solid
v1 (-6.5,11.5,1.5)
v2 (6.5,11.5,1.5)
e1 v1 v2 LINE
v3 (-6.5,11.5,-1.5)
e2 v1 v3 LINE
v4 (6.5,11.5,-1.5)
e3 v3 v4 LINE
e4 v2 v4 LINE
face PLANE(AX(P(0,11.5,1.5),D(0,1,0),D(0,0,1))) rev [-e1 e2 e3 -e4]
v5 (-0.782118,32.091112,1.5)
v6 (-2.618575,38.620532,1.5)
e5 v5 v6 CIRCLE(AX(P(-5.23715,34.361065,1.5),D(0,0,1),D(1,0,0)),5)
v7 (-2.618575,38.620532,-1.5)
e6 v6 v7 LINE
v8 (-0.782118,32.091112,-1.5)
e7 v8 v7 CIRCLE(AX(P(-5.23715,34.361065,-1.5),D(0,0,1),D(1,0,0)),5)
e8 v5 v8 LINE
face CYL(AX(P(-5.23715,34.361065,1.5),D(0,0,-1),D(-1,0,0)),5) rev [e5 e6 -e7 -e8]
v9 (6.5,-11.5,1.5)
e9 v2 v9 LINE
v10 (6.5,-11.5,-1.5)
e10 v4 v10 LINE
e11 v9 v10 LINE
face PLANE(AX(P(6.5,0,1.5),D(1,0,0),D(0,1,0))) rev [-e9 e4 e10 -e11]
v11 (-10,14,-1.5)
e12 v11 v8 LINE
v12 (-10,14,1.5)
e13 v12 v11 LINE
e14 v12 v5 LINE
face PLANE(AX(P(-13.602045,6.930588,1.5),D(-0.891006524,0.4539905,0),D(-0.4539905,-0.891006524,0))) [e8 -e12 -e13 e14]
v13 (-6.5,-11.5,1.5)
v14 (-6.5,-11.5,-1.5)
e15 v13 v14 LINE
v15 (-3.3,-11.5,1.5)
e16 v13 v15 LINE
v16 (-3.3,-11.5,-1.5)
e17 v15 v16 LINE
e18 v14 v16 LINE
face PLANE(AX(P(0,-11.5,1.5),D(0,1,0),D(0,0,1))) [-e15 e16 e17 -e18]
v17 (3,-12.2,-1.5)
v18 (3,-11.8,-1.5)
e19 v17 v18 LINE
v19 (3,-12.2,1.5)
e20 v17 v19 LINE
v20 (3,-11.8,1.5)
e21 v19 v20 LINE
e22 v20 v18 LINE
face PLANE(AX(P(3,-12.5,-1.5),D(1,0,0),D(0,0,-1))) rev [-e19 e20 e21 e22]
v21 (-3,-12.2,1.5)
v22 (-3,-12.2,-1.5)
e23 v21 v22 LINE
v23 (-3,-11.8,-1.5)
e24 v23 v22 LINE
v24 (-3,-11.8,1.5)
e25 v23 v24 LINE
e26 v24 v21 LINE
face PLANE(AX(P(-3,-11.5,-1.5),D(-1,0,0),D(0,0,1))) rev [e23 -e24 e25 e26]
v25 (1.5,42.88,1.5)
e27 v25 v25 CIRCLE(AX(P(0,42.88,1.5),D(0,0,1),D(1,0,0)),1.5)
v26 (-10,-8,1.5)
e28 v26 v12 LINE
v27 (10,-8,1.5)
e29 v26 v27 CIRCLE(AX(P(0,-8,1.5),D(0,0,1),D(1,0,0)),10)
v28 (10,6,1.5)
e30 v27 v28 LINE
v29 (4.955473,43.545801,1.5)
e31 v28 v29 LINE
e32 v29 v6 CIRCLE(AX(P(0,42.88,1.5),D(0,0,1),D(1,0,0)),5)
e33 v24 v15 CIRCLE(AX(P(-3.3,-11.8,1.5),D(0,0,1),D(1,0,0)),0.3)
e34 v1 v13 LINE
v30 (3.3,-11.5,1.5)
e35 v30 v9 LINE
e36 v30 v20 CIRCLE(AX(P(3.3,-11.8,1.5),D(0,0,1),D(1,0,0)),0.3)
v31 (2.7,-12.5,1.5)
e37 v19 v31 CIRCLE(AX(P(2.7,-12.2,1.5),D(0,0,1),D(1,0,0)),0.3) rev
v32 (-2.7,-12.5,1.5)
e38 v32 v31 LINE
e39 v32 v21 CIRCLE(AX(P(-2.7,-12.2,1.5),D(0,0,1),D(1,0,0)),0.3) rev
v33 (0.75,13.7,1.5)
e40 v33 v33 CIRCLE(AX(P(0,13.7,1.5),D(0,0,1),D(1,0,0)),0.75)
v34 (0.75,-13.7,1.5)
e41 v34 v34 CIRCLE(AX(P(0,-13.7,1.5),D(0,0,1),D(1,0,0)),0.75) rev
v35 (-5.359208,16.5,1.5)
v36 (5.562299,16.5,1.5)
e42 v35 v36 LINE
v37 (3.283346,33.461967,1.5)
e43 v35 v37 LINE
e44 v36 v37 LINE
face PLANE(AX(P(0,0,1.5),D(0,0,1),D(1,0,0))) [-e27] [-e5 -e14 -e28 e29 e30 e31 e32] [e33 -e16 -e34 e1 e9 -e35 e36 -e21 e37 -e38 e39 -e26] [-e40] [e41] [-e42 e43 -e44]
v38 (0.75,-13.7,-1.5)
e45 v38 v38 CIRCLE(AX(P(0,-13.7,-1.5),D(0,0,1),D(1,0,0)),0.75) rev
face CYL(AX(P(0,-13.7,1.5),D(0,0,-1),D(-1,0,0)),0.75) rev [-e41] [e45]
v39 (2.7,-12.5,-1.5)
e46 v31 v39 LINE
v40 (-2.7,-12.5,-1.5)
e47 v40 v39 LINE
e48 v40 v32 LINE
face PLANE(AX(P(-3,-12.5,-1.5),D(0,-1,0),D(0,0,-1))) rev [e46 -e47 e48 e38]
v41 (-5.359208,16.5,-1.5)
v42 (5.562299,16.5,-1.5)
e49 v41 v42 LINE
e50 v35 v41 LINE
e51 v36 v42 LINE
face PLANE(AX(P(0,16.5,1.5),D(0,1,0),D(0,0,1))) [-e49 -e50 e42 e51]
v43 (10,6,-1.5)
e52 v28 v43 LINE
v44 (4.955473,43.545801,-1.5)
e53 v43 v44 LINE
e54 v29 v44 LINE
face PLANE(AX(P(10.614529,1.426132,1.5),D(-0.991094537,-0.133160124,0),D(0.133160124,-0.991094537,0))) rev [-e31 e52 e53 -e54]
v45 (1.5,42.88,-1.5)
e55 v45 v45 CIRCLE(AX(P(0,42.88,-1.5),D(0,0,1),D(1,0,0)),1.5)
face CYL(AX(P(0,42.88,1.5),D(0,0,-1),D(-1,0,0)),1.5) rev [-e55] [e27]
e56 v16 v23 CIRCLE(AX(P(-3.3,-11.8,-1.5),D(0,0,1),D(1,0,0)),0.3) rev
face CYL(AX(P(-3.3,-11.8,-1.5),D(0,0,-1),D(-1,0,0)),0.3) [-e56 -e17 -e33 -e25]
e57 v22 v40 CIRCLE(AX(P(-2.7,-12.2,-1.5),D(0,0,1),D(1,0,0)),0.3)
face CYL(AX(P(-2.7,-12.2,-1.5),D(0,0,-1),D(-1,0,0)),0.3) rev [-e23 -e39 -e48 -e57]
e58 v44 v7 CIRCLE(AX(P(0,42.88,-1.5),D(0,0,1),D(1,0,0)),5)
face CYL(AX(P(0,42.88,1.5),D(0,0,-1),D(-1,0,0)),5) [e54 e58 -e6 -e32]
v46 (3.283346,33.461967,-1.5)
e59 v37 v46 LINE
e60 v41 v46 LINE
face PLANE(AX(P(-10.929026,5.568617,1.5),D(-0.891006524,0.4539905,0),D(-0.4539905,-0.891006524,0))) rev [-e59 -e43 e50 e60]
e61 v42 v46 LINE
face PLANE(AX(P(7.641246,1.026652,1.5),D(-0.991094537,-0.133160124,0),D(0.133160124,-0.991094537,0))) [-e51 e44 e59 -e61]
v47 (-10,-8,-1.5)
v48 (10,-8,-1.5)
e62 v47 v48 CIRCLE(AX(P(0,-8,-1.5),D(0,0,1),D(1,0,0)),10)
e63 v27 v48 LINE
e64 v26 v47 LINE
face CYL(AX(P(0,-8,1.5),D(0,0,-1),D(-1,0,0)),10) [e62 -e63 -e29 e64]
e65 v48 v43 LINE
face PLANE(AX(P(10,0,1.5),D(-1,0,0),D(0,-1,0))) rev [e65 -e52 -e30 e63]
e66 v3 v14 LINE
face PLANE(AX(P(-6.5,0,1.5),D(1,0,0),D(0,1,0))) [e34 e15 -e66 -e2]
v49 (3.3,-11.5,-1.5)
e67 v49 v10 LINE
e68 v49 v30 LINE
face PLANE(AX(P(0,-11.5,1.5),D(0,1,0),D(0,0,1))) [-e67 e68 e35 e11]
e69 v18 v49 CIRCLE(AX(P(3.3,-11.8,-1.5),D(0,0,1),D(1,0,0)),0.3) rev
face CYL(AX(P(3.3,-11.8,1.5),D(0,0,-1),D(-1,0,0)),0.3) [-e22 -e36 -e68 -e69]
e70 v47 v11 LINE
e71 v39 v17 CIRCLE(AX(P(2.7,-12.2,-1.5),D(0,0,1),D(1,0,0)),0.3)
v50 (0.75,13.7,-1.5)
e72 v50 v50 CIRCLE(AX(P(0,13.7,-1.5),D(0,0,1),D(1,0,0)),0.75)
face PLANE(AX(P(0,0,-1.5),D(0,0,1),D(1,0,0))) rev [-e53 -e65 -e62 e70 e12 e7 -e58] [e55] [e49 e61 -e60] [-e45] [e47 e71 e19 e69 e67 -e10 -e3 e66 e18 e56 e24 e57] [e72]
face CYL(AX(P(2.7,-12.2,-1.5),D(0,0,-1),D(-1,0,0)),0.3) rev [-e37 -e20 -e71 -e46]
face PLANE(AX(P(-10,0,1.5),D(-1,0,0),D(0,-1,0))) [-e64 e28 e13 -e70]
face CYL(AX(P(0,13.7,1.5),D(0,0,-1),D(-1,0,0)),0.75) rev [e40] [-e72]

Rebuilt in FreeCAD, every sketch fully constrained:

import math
import FreeCAD as App
import Part
import Sketcher

V = App.Vector
Q = App.Units.Quantity


def edges_at(feature, points):
    """Names of the edges that pass closest to the given points."""
    edges = feature.Shape.Edges
    near = lambda p: min(range(len(edges)), key=lambda i: edges[i].distToShape(Part.Vertex(*p))[0])
    return sorted({f"Edge{near(p) + 1}" for p in points})


def add_polygon(sketch, points):
    """Adds a closed chain of lines whose ends are joined by coincident constraints."""
    first, n = sketch.GeometryCount, len(points)
    for a, b in zip(points, points[1:] + points[:1]):
        sketch.addGeometry(Part.LineSegment(App.Vector(*a, 0), App.Vector(*b, 0)), False)
    for i in range(n):
        sketch.addConstraint(Sketcher.Constraint("Coincident", first + i, 2, first + (i + 1) % n, 1))

doc = App.newDocument("Part")
params = doc.addObject("Spreadsheet::Sheet", "Params")
for row, (alias, value) in enumerate([
    ("sketch1_diameter", "3 mm"),
    ("sketch1_radius", "10 mm"),
    ("sketch1_radius2", "5 mm"),
    ("sketch1_diameter2", "1.5 mm"),
    ("sketch1_width", "13 mm"),
    ("pad1_length", "3 mm"),
    ("sketch2_width", "6 mm"),
    ("sketch2_height", "1 mm"),
    ("pocket1_length", "3 mm"),
    ("fillet_radius", "0.3 mm"),
], start=1):
    params.set(f"A{row}", alias)
    params.set(f"B{row}", "=" + value)
    params.setAlias(f"B{row}", alias)

body = doc.addObject("PartDesign::Body", "Body")

# Sketch on XY plane
sketch1 = doc.addObject("Sketcher::SketchObject", "Sketch")
body.addObject(sketch1)
sketch1.AttachmentSupport = (doc.XY_Plane, [""])
sketch1.MapMode = "FlatFace"
sketch1.addGeometry(Part.ArcOfCircle(Part.Circle(V(0, -8, 0), V(0, 0, 1), 10), math.radians(180), math.radians(360)), False)  # 0
sketch1.addGeometry(Part.LineSegment(V(10, -8, 0), V(10, 6, 0)), False)  # 1
sketch1.addGeometry(Part.LineSegment(V(10, 6, 0), V(5, 43.5, 0)), False)  # 2
sketch1.addGeometry(Part.ArcOfCircle(Part.Circle(V(0, 42.9, 0), V(0, 0, 1), 5), math.radians(8), math.radians(238)), False)  # 3
sketch1.addGeometry(Part.ArcOfCircle(Part.Circle(V(-5.2, 34.4, 0), V(0, 0, 1), 5), math.radians(-27), math.radians(58)), False)  # 4
sketch1.addGeometry(Part.LineSegment(V(-0.8, 32.1, 0), V(-10, 14, 0)), False)  # 5
sketch1.addGeometry(Part.LineSegment(V(-10, 14, 0), V(-10, -8, 0)), False)  # 6
sketch1.addGeometry(Part.Circle(V(0, -13.7, 0), V(0, 0, 1), 0.8), False)  # 7
add_polygon(sketch1, [(6.5, -11.5), (-6.5, -11.5), (-6.5, 11.5), (6.5, 11.5)])  # lines 8-11
sketch1.addGeometry(Part.Circle(V(0, 13.7, 0), V(0, 0, 1), 0.8), False)  # 12
add_polygon(sketch1, [(3.3, 33.5), (5.6, 16.5), (-5.4, 16.5)])  # lines 13-15
sketch1.addGeometry(Part.Circle(V(0, 42.9, 0), V(0, 0, 1), 1.5), False)  # 16
sketch1.addConstraint([
    Sketcher.Constraint("Tangent", 0, 2, 1, 1),
    Sketcher.Constraint("Coincident", 1, 2, 2, 1),
    Sketcher.Constraint("Tangent", 2, 2, 3, 1),
    Sketcher.Constraint("Tangent", 3, 2, 4, 2),
    Sketcher.Constraint("Tangent", 4, 1, 5, 1),
    Sketcher.Constraint("Coincident", 5, 2, 6, 1),
    Sketcher.Constraint("Tangent", 6, 2, 0, 1),
    Sketcher.Constraint("Vertical", 1),
    Sketcher.Constraint("Vertical", 6),
    Sketcher.Constraint("Horizontal", 8),
    Sketcher.Constraint("Vertical", 9),
    Sketcher.Constraint("Horizontal", 10),
    Sketcher.Constraint("Vertical", 11),
    Sketcher.Constraint("Horizontal", 14),
    Sketcher.Constraint("Coincident", 16, 3, 3, 3),
    Sketcher.Constraint("Equal", 3, 4),
    Sketcher.Constraint("Equal", 7, 12),
    Sketcher.Constraint("Symmetric", 7, 3, 12, 3, -1, 1),
    Sketcher.Constraint("Symmetric", 8, 2, 10, 2, -1, 1),
    Sketcher.Constraint("PointOnObject", 0, 3, -2),
    Sketcher.Constraint("PointOnObject", 3, 3, -2),
    Sketcher.Constraint("PointOnObject", 7, 3, -2),
    Sketcher.Constraint("Parallel", 2, 13),
    Sketcher.Constraint("Parallel", 5, 15),
    Sketcher.Constraint("Diameter", 16, Q("3 mm")),
    Sketcher.Constraint("Radius", 0, Q("10 mm")),
    Sketcher.Constraint("Radius", 3, Q("5 mm")),
    Sketcher.Constraint("Diameter", 7, Q("1.5 mm")),
    Sketcher.Constraint("DistanceX", 8, 2, 8, 1, Q("13 mm")),
    Sketcher.Constraint("DistanceY", 1, 1, 1, 2, Q("14 mm")),
    Sketcher.Constraint("DistanceY", 6, 2, 6, 1, Q("22 mm")),
    Sketcher.Constraint("DistanceY", 9, 1, 9, 2, Q("23 mm")),
    Sketcher.Constraint("Angle", 5, Q("-117 deg")),
    Sketcher.Constraint("DistanceY", 0, 3, -1, 1, Q("8 mm")),
    Sketcher.Constraint("DistanceY", 10, 2, 13, 2, Q("5 mm")),
    Sketcher.Constraint("DistanceY", 7, 3, -1, 1, Q("13.7 mm")),
    Sketcher.Constraint("DistanceY", -1, 1, 3, 3, Q("42.88 mm")),
    Sketcher.Constraint("DistanceX", -1, 1, 13, 2, Q("5.562299 mm")),
    Sketcher.Constraint("Distance", 13, Q("17.114378 mm")),
])
sketch1.setExpression("Constraints[31]", "Params.sketch1_diameter")
sketch1.setExpression("Constraints[32]", "Params.sketch1_radius")
sketch1.setExpression("Constraints[33]", "Params.sketch1_radius2")
sketch1.setExpression("Constraints[34]", "Params.sketch1_diameter2")
sketch1.setExpression("Constraints[35]", "Params.sketch1_width")
pad1 = doc.addObject("PartDesign::Pad", "Pad")
body.addObject(pad1)
pad1.Profile = sketch1
pad1.setExpression("Length", "Params.pad1_length")
pad1.Midplane = True

# Sketch on XY plane
sketch2 = doc.addObject("Sketcher::SketchObject", "Sketch001")
body.addObject(sketch2)
sketch2.AttachmentSupport = (doc.XY_Plane, [""])
sketch2.MapMode = "FlatFace"
sketch2.AttachmentOffset = App.Placement(V(0, 0, 1.5), App.Rotation())
add_polygon(sketch2, [(-3, -11.5), (-3, -12.5), (3, -12.5), (3, -11.5)])  # lines 0-3
sketch2.addConstraint([
    Sketcher.Constraint("Vertical", 0),
    Sketcher.Constraint("Horizontal", 1),
    Sketcher.Constraint("Vertical", 2),
    Sketcher.Constraint("Horizontal", 3),
    Sketcher.Constraint("DistanceX", 1, 1, 1, 2, Q("6 mm")),
    Sketcher.Constraint("DistanceY", 0, 2, 0, 1, Q("1 mm")),
    Sketcher.Constraint("DistanceX", 0, 2, -1, 1, Q("3 mm")),
    Sketcher.Constraint("DistanceY", 0, 2, -1, 1, Q("12.5 mm")),
])
sketch2.setExpression("Constraints[8]", "Params.sketch2_width")
sketch2.setExpression("Constraints[9]", "Params.sketch2_height")
pocket1 = doc.addObject("PartDesign::Pocket", "Pocket")
body.addObject(pocket1)
pocket1.Profile = sketch2
pocket1.setExpression("Length", "Params.pocket1_length")
doc.recompute()

fillet = doc.addObject("PartDesign::Fillet", "Fillet")
body.addObject(fillet)
fillet.Base = (pocket1, edges_at(pocket1, [
    (-3, -11.5, 0),
    (3, -11.5, 0),
    (3, -12.5, 0),
    (-3, -12.5, 0),
]))
fillet.setExpression("Radius", "Params.fillet_radius")

doc.recompute()
